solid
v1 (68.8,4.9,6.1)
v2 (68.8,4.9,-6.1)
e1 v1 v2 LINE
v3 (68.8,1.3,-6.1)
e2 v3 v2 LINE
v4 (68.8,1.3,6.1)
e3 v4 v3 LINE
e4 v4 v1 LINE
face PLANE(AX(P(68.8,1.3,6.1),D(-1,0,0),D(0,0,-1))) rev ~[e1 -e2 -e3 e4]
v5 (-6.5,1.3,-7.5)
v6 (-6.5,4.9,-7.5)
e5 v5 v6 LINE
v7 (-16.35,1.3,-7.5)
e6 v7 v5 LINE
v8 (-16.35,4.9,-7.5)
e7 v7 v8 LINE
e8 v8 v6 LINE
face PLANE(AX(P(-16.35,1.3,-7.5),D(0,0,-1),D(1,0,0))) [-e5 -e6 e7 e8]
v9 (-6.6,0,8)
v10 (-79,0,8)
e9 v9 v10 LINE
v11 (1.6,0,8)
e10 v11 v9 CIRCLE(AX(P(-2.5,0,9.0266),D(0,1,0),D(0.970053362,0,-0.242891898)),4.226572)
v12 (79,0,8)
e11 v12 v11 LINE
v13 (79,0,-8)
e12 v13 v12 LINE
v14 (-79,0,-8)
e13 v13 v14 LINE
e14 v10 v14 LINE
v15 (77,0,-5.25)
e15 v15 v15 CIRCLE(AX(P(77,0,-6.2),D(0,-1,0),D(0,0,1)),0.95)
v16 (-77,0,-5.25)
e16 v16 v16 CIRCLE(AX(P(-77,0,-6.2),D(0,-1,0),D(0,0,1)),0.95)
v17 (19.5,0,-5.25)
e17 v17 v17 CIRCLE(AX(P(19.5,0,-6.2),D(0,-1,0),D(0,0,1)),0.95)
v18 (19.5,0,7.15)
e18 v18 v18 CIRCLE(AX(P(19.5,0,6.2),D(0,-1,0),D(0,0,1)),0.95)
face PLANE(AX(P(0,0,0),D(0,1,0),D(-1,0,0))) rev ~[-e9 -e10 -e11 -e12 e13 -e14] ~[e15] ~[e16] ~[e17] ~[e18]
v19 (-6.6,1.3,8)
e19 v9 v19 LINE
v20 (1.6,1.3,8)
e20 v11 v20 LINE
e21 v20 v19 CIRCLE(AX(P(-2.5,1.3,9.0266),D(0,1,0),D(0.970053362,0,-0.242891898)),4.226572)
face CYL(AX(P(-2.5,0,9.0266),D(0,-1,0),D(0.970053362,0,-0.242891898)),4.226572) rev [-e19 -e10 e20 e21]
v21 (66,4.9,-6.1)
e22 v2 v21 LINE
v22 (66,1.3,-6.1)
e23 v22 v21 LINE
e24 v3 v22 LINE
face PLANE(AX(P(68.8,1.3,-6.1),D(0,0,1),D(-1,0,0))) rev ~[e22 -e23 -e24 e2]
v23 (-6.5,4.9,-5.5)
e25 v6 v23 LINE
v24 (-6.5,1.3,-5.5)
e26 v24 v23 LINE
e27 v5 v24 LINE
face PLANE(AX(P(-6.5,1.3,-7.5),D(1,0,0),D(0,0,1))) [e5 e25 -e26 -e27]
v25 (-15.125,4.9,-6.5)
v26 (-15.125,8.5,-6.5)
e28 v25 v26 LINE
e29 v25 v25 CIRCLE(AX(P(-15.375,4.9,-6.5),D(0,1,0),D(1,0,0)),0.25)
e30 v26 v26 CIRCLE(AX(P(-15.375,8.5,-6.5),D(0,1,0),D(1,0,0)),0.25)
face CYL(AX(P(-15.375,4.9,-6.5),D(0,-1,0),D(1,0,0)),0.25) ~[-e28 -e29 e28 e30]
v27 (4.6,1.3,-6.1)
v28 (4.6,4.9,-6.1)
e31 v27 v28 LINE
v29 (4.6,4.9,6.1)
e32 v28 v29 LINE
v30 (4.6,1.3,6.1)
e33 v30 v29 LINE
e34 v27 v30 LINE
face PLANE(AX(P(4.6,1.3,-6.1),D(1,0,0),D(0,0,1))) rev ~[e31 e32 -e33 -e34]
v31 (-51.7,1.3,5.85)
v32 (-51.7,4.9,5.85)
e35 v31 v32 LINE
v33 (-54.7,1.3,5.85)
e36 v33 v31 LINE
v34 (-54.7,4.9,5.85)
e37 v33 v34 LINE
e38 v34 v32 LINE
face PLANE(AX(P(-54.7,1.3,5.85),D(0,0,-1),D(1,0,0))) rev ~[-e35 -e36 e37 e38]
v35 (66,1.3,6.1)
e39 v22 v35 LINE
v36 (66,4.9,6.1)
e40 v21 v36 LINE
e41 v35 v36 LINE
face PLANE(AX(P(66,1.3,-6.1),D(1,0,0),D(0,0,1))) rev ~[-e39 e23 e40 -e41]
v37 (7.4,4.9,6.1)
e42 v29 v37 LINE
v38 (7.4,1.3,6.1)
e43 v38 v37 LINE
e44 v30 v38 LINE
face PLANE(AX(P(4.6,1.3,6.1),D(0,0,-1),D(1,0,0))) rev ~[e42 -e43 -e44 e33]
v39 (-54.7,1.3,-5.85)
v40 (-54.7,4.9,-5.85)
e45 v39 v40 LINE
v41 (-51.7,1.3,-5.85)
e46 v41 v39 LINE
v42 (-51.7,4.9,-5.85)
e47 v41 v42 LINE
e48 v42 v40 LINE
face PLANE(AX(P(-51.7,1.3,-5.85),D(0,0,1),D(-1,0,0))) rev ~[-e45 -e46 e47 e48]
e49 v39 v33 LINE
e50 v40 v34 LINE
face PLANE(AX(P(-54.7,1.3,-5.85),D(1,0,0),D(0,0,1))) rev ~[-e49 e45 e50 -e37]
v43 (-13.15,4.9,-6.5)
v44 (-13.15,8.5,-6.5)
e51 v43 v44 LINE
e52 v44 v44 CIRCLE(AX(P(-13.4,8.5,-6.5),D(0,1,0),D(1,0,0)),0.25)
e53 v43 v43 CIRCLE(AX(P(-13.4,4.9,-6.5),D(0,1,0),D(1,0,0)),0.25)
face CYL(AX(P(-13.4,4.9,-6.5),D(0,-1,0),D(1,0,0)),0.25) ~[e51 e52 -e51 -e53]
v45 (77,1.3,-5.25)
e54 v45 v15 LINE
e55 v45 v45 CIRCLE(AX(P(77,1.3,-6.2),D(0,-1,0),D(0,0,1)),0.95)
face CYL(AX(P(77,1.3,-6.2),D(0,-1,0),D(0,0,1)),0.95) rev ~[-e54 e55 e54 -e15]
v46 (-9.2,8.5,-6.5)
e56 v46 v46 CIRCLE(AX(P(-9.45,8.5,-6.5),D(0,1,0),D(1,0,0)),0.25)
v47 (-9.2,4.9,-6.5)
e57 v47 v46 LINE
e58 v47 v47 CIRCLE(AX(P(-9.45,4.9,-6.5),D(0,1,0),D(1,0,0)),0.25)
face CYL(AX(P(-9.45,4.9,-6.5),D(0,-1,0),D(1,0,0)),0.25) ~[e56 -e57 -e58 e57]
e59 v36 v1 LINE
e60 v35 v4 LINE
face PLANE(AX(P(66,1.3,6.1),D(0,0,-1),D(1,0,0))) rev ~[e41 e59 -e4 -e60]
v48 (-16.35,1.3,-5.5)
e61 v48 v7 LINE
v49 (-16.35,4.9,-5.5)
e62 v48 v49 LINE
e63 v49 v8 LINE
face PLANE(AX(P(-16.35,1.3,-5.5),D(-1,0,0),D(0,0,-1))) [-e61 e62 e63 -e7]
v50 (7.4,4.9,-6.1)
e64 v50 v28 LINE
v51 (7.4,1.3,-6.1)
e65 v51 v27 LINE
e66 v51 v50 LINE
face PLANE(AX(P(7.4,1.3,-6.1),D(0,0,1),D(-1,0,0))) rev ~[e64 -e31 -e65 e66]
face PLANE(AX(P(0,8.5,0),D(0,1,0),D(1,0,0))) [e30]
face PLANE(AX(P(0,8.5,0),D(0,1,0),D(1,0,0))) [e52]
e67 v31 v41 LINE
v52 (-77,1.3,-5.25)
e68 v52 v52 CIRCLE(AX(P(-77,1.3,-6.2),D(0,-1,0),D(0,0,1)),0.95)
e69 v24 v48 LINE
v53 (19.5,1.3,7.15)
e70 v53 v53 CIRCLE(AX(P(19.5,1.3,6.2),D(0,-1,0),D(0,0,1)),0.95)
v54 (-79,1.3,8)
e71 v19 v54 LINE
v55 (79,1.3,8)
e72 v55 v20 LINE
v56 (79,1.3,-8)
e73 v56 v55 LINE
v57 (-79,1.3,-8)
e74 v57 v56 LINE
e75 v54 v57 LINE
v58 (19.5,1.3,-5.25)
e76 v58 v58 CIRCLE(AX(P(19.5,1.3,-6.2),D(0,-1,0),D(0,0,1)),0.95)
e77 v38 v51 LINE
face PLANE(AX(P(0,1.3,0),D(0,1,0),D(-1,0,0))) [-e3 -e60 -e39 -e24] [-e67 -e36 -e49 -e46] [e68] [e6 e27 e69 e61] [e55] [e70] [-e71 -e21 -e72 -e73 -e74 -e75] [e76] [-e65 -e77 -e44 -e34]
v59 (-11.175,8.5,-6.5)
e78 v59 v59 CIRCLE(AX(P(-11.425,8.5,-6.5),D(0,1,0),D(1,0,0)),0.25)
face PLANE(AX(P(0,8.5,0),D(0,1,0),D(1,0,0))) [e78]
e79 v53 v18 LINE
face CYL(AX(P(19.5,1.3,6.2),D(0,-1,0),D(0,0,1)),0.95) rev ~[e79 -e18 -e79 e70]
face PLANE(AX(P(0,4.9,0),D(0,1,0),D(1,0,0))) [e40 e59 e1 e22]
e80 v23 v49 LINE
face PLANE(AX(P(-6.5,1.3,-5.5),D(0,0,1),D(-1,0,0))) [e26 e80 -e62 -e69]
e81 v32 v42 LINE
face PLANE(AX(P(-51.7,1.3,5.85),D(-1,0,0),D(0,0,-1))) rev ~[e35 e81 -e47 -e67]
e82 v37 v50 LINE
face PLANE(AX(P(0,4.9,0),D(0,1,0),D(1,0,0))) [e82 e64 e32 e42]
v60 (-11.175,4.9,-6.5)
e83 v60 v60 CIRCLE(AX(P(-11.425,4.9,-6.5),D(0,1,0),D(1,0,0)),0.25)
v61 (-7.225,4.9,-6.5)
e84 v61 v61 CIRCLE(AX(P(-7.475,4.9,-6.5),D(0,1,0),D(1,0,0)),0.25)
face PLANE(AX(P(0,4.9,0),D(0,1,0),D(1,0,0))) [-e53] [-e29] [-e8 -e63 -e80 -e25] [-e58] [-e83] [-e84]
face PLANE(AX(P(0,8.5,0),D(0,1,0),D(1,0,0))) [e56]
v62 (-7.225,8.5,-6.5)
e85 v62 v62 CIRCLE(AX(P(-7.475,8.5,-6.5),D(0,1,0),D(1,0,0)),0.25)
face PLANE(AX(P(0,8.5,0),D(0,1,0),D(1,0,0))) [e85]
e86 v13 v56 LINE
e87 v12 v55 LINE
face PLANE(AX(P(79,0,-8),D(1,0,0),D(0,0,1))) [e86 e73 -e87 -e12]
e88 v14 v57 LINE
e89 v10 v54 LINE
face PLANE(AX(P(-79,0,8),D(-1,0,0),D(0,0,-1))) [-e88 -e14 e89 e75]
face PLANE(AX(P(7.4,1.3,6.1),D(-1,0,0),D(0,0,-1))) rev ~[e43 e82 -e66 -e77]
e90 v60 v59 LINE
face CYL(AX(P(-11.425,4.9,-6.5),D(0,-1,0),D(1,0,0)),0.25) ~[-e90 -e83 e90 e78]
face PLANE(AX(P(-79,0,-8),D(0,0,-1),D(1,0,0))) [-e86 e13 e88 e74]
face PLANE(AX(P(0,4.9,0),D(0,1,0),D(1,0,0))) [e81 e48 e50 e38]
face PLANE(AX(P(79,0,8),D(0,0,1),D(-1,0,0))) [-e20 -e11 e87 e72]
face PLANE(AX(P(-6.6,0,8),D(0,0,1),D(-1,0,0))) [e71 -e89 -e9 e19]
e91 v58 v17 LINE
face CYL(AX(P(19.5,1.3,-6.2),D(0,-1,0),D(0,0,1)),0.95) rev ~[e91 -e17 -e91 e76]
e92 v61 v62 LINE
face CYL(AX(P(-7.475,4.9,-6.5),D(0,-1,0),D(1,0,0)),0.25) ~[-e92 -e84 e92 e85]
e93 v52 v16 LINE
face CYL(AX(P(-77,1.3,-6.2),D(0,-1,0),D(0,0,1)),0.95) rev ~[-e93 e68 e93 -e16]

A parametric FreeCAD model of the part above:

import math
import FreeCAD as App
import Part
import Sketcher
from FreeCAD import Vector

doc = App.newDocument("Part")
body = doc.addObject("PartDesign::Body", "Body")

sketch1 = body.newObject("Sketcher::SketchObject", "Sketch")
sketch1.AttachmentSupport = (doc.getObject("XZ_Plane"), [""])
sketch1.MapMode = "FlatFace"
sketch1.addGeometry([
    Part.LineSegment(Vector(79, -8, 0), Vector(-79, -8, 0)),
    Part.LineSegment(Vector(-79, -8, 0), Vector(-79, 8, 0)),
    Part.LineSegment(Vector(-79, 8, 0), Vector(-6.6, 8, 0)),
    Part.ArcOfCircle(Part.Circle(Vector(-2.5, 9.0266, 0), Vector(0, 0, 1), 4.226572), math.radians(-165.942714), math.radians(-14.057286)),
    Part.LineSegment(Vector(1.6, 8, 0), Vector(79, 8, 0)),
    Part.LineSegment(Vector(79, 8, 0), Vector(79, -8, 0)),
], False)
sketch1.addConstraint([
    Sketcher.Constraint("Coincident", 0, 2, 1, 1),
    Sketcher.Constraint("Coincident", 1, 2, 2, 1),
    Sketcher.Constraint("Coincident", 2, 2, 3, 1),
    Sketcher.Constraint("Coincident", 3, 2, 4, 1),
    Sketcher.Constraint("Coincident", 4, 2, 5, 1),
    Sketcher.Constraint("Coincident", 5, 2, 0, 1),
    Sketcher.Constraint("Horizontal", 0),
    Sketcher.Constraint("Vertical", 1),
    Sketcher.Constraint("Horizontal", 2),
    Sketcher.Constraint("Horizontal", 4),
    Sketcher.Constraint("Vertical", 5),
    Sketcher.Constraint("Symmetric", 0, 2, 4, 2, -1, 1),
    Sketcher.Constraint("Horizontal", 2, 2, 3, 2),
    Sketcher.Constraint("DistanceX", 0, 2, 0, 1, 158.0),
    Sketcher.Constraint("DistanceY", 1, 1, 1, 2, 16.0),
    Sketcher.Constraint("DistanceX", 0, 2, 3, 3, 76.5),
    Sketcher.Constraint("DistanceX", 2, 2, 3, 2, 8.2),
    Sketcher.Constraint("Radius", 3, 4.2266),
])
pad1 = body.newObject("PartDesign::Pad", "Pad")
pad1.Profile = sketch1
pad1.Length = 1.3
pad1.Reversed = True

sketch2 = body.newObject("Sketcher::SketchObject", "Sketch001")
sketch2.AttachmentSupport = (doc.getObject("XZ_Plane"), [""])
sketch2.MapMode = "FlatFace"
sketch2.AttachmentOffset = App.Placement(Vector(0, 0, -1.3), App.Rotation())
sketch2.addGeometry([
    Part.Circle(Vector(-77, -6.2, 0), Vector(0, 0, 1), 0.95),
    Part.Circle(Vector(77, -6.2, 0), Vector(0, 0, 1), 0.95),
    Part.Circle(Vector(19.5, -6.2, 0), Vector(0, 0, 1), 0.95),
    Part.Circle(Vector(19.5, 6.2, 0), Vector(0, 0, 1), 0.95),
], False)
sketch2.addConstraint([
    Sketcher.Constraint("Equal", 0, 1),
    Sketcher.Constraint("Equal", 1, 2),
    Sketcher.Constraint("Equal", 2, 3),
    Sketcher.Constraint("Symmetric", 0, 3, 1, 3, -2),
    Sketcher.Constraint("Symmetric", 2, 3, 3, 3, -1),
    Sketcher.Constraint("Horizontal", 1, 3, 2, 3),
    Sketcher.Constraint("Diameter", 0, 1.9),
    Sketcher.Constraint("DistanceX", 0, 3, -1, 1, 77.0),
    Sketcher.Constraint("DistanceY", 0, 3, -1, 1, 6.2),
    Sketcher.Constraint("DistanceX", -1, 1, 2, 3, 19.5),
])
doc.recompute()
hole = body.newObject("PartDesign::Hole", "Hole")
hole.Profile = sketch2
hole.ThreadType = "None"
hole.Diameter = 1.9
hole.DepthType = "ThroughAll"
hole.Reversed = True

sketch3 = body.newObject("Sketcher::SketchObject", "Sketch002")
sketch3.AttachmentSupport = (doc.getObject("XZ_Plane"), [""])
sketch3.MapMode = "FlatFace"
sketch3.AttachmentOffset = App.Placement(Vector(0, 0, -1.3), App.Rotation())
sketch3.addGeometry([
    Part.LineSegment(Vector(-6.5, -7.5, 0), Vector(-16.35, -7.5, 0)),
    Part.LineSegment(Vector(-16.35, -7.5, 0), Vector(-16.35, -5.5, 0)),
    Part.LineSegment(Vector(-16.35, -5.5, 0), Vector(-6.5, -5.5, 0)),
    Part.LineSegment(Vector(-6.5, -5.5, 0), Vector(-6.5, -7.5, 0)),
    Part.LineSegment(Vector(-54.7, -5.85, 0), Vector(-54.7, 5.85, 0)),
    Part.LineSegment(Vector(-54.7, 5.85, 0), Vector(-51.7, 5.85, 0)),
    Part.LineSegment(Vector(-51.7, 5.85, 0), Vector(-51.7, -5.85, 0)),
    Part.LineSegment(Vector(-51.7, -5.85, 0), Vector(-54.7, -5.85, 0)),
    Part.LineSegment(Vector(4.6, -6.1, 0), Vector(4.6, 6.1, 0)),
    Part.LineSegment(Vector(4.6, 6.1, 0), Vector(7.4, 6.1, 0)),
    Part.LineSegment(Vector(7.4, 6.1, 0), Vector(7.4, -6.1, 0)),
    Part.LineSegment(Vector(7.4, -6.1, 0), Vector(4.6, -6.1, 0)),
    Part.LineSegment(Vector(66, -6.1, 0), Vector(66, 6.1, 0)),
    Part.LineSegment(Vector(66, 6.1, 0), Vector(68.8, 6.1, 0)),
    Part.LineSegment(Vector(68.8, 6.1, 0), Vector(68.8, -6.1, 0)),
    Part.LineSegment(Vector(68.8, -6.1, 0), Vector(66, -6.1, 0)),
], False)
sketch3.addConstraint([
    Sketcher.Constraint("Coincident", 0, 2, 1, 1),
    Sketcher.Constraint("Coincident", 1, 2, 2, 1),
    Sketcher.Constraint("Coincident", 2, 2, 3, 1),
    Sketcher.Constraint("Coincident", 3, 2, 0, 1),
    Sketcher.Constraint("Coincident", 4, 2, 5, 1),
    Sketcher.Constraint("Coincident", 5, 2, 6, 1),
    Sketcher.Constraint("Coincident", 6, 2, 7, 1),
    Sketcher.Constraint("Coincident", 7, 2, 4, 1),
    Sketcher.Constraint("Coincident", 8, 2, 9, 1),
    Sketcher.Constraint("Coincident", 9, 2, 10, 1),
    Sketcher.Constraint("Coincident", 10, 2, 11, 1),
    Sketcher.Constraint("Coincident", 11, 2, 8, 1),
    Sketcher.Constraint("Coincident", 12, 2, 13, 1),
    Sketcher.Constraint("Coincident", 13, 2, 14, 1),
    Sketcher.Constraint("Coincident", 14, 2, 15, 1),
    Sketcher.Constraint("Coincident", 15, 2, 12, 1),
    Sketcher.Constraint("Horizontal", 0),
    Sketcher.Constraint("Vertical", 1),
    Sketcher.Constraint("Horizontal", 2),
    Sketcher.Constraint("Vertical", 3),
    Sketcher.Constraint("Vertical", 4),
    Sketcher.Constraint("Horizontal", 5),
    Sketcher.Constraint("Vertical", 6),
    Sketcher.Constraint("Horizontal", 7),
    Sketcher.Constraint("Vertical", 8),
    Sketcher.Constraint("Horizontal", 9),
    Sketcher.Constraint("Vertical", 10),
    Sketcher.Constraint("Horizontal", 11),
    Sketcher.Constraint("Vertical", 12),
    Sketcher.Constraint("Horizontal", 13),
    Sketcher.Constraint("Vertical", 14),
    Sketcher.Constraint("Horizontal", 15),
    Sketcher.Constraint("Horizontal", 9, 2, 12, 2),
    Sketcher.Constraint("Horizontal", 11, 2, 14, 2),
    Sketcher.Constraint("Equal", 11, 13),
    Sketcher.Constraint("DistanceX", 5, 1, 5, 2, 3.0),
    Sketcher.Constraint("DistanceY", 1, 1, 1, 2, 2.0),
    Sketcher.Constraint("DistanceX", 9, 1, 9, 2, 2.8),
    Sketcher.Constraint("DistanceY", 4, 1, 4, 2, 11.7),
    Sketcher.Constraint("DistanceY", 8, 1, 8, 2, 12.2),
    Sketcher.Constraint("DistanceX", 0, 2, 0, 1, 9.85),
    Sketcher.Constraint("DistanceX", 2, 2, 12, 2, 72.5),
    Sketcher.Constraint("DistanceX", -1, 1, 12, 2, 66.0),
    Sketcher.Constraint("DistanceY", 0, 2, -1, 1, 7.5),
    Sketcher.Constraint("DistanceX", 4, 2, -1, 1, 54.7),
    Sketcher.Constraint("DistanceX", -1, 1, 8, 2, 4.6),
    Sketcher.Constraint("DistanceY", -1, 1, 8, 2, 6.1),
    Sketcher.Constraint("DistanceY", -1, 1, 4, 2, 5.85),
])
pad2 = body.newObject("PartDesign::Pad", "Pad001")
pad2.Profile = sketch3
pad2.Length = 3.6
pad2.Reversed = True

sketch4 = body.newObject("Sketcher::SketchObject", "Sketch003")
sketch4.AttachmentSupport = (doc.getObject("XZ_Plane"), [""])
sketch4.MapMode = "FlatFace"
sketch4.AttachmentOffset = App.Placement(Vector(0, 0, -4.9), App.Rotation())
sketch4.addGeometry([
    Part.Circle(Vector(-15.375, -6.5, 0), Vector(0, 0, 1), 0.25),
    Part.Circle(Vector(-7.475, -6.5, 0), Vector(0, 0, 1), 0.25),
    Part.Circle(Vector(-13.4, -6.5, 0), Vector(0, 0, 1), 0.25),
    Part.Circle(Vector(-11.425, -6.5, 0), Vector(0, 0, 1), 0.25),
    Part.Circle(Vector(-9.45, -6.5, 0), Vector(0, 0, 1), 0.25),
], False)
sketch4.addConstraint([
    Sketcher.Constraint("Equal", 0, 1),
    Sketcher.Constraint("Equal", 1, 2),
    Sketcher.Constraint("Equal", 2, 3),
    Sketcher.Constraint("Equal", 3, 4),
    Sketcher.Constraint("Horizontal", 0, 3, 1, 3),
    Sketcher.Constraint("Horizontal", 1, 3, 2, 3),
    Sketcher.Constraint("Horizontal", 2, 3, 3, 3),
    Sketcher.Constraint("Horizontal", 3, 3, 4, 3),
    Sketcher.Constraint("Diameter", 0, 0.5),
    Sketcher.Constraint("DistanceX", 0, 3, 1, 3, 7.9),
    Sketcher.Constraint("DistanceX", 0, 3, 2, 3, 1.975),
    Sketcher.Constraint("DistanceX", 2, 3, 3, 3, 1.975),
    Sketcher.Constraint("DistanceX", 4, 3, 1, 3, 1.975),
    Sketcher.Constraint("DistanceY", 0, 3, -1, 1, 6.5),
    Sketcher.Constraint("DistanceX", 2, 3, -1, 1, 13.4),
])
pad3 = body.newObject("PartDesign::Pad", "Pad002")
pad3.Profile = sketch4
pad3.Length = 3.6
pad3.Reversed = True

doc.recompute()
